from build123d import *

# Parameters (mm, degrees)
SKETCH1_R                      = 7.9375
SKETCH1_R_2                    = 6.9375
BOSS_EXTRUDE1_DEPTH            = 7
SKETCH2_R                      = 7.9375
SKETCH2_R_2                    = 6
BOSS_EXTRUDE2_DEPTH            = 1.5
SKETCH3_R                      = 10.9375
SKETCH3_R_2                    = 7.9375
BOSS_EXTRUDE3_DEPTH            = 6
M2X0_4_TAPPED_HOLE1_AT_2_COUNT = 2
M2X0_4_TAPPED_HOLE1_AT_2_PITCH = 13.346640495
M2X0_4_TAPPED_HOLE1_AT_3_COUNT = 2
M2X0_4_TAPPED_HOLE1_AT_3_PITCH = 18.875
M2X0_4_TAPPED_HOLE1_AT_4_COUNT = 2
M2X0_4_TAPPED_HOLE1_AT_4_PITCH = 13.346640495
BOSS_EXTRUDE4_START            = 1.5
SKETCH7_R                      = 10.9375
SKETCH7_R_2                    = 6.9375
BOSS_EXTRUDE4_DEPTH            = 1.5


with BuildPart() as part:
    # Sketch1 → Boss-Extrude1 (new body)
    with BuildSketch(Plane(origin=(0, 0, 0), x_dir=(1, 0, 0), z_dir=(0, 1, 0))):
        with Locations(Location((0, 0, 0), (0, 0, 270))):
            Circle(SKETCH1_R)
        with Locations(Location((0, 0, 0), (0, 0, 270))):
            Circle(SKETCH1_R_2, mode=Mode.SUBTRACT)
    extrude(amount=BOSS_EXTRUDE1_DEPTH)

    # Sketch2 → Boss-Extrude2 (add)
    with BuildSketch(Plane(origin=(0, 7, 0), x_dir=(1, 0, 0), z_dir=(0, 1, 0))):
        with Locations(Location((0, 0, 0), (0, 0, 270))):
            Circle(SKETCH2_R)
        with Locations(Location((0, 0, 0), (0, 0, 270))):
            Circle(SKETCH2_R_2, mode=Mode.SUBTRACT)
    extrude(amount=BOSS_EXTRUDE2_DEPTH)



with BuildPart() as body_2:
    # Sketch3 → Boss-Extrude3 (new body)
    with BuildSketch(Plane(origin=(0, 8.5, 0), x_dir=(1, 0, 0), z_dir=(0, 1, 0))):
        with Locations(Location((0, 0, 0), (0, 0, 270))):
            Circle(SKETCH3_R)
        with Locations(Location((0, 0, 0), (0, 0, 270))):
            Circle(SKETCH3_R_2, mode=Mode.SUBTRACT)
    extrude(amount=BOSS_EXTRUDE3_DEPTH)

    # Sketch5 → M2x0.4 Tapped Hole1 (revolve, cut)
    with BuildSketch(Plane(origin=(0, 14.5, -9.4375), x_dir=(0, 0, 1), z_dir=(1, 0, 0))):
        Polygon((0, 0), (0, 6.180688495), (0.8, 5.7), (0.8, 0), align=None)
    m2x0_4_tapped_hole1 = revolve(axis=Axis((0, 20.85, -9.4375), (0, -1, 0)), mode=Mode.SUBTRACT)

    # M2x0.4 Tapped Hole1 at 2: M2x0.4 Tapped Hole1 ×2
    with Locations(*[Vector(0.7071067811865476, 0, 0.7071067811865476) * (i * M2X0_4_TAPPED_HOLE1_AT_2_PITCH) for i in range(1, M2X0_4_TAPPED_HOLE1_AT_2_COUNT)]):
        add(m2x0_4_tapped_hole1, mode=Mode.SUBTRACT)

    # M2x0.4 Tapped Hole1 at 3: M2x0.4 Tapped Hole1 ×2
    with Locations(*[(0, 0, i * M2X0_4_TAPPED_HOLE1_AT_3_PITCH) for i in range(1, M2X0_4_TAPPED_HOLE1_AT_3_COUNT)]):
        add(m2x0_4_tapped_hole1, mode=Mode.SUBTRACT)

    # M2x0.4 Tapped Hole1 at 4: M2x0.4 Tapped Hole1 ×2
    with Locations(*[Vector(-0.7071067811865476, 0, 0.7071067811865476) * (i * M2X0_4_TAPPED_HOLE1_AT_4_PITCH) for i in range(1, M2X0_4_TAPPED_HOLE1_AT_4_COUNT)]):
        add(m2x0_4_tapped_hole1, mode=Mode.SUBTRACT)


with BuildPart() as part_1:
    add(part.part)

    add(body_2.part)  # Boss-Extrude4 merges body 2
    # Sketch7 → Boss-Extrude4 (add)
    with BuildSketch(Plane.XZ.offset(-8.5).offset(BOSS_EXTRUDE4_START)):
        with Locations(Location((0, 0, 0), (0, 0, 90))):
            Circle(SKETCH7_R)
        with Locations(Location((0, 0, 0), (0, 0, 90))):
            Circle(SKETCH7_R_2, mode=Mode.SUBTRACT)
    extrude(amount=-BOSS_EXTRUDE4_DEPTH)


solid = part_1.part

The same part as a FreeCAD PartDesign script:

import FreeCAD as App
import Part
import Sketcher
from FreeCAD import Vector
Q = App.Units.Quantity


def add_polygon(sketch, points):
    """Adds a closed chain of lines whose ends are joined by coincident constraints."""
    first, n = sketch.GeometryCount, len(points)
    for a, b in zip(points, points[1:] + points[:1]):
        sketch.addGeometry(Part.LineSegment(App.Vector(*a, 0), App.Vector(*b, 0)), False)
    for i in range(n):
        sketch.addConstraint(Sketcher.Constraint("Coincident", first + i, 2, first + (i + 1) % n, 1))

doc = App.newDocument("Part")
body = doc.addObject("PartDesign::Body", "Body")

sketch1 = doc.addObject("Sketcher::SketchObject", "Sketch")
body.addObject(sketch1)
sketch1.AttachmentSupport = (doc.XZ_Plane, [""])
sketch1.MapMode = "FlatFace"
sketch1.addGeometry([
    Part.Circle(Vector(0, 0, 0), Vector(0, 0, 1), 7.9375),
    Part.Circle(Vector(0, 0, 0), Vector(0, 0, 1), 6.9375),
], False)
sketch1.addConstraint([
    Sketcher.Constraint("Coincident", 0, 3, -1, 1),
    Sketcher.Constraint("Coincident", 1, 3, -1, 1),
    Sketcher.Constraint("Diameter", 0, Q("15.875 mm")),
    Sketcher.Constraint("Diameter", 1, Q("13.875 mm")),
])
pad1 = doc.addObject("PartDesign::Pad", "Pad")
body.addObject(pad1)
pad1.Profile = sketch1
pad1.Length = 7
pad1.Reversed = True

sketch2 = doc.addObject("Sketcher::SketchObject", "Sketch001")
body.addObject(sketch2)
sketch2.AttachmentSupport = (doc.XZ_Plane, [""])
sketch2.MapMode = "FlatFace"
sketch2.AttachmentOffset = App.Placement(Vector(0, 0, -7), App.Rotation())
sketch2.addGeometry([
    Part.Circle(Vector(0, 0, 0), Vector(0, 0, 1), 7.9375),
    Part.Circle(Vector(0, 0, 0), Vector(0, 0, 1), 6),
], False)
sketch2.addConstraint([
    Sketcher.Constraint("Coincident", 0, 3, -1, 1),
    Sketcher.Constraint("Coincident", 1, 3, -1, 1),
    Sketcher.Constraint("Diameter", 1, Q("12 mm")),
    Sketcher.Constraint("Diameter", 0, Q("15.875 mm")),
])
pad2 = doc.addObject("PartDesign::Pad", "Pad001")
body.addObject(pad2)
pad2.Profile = sketch2
pad2.Length = 1.5
pad2.Reversed = True
body2 = doc.addObject("PartDesign::Body", "Body001")

sketch3 = doc.addObject("Sketcher::SketchObject", "Sketch002")
body2.addObject(sketch3)
sketch3.AttachmentSupport = (doc.getObject("XZ_Plane001"), [""])
sketch3.MapMode = "FlatFace"
sketch3.AttachmentOffset = App.Placement(Vector(0, 0, -8.5), App.Rotation())
sketch3.addGeometry([
    Part.Circle(Vector(0, 0, 0), Vector(0, 0, 1), 10.9375),
    Part.Circle(Vector(0, 0, 0), Vector(0, 0, 1), 7.9375),
], False)
sketch3.addConstraint([
    Sketcher.Constraint("Coincident", 0, 3, -1, 1),
    Sketcher.Constraint("Coincident", 1, 3, -1, 1),
    Sketcher.Constraint("Diameter", 0, Q("21.875 mm")),
    Sketcher.Constraint("Diameter", 1, Q("15.875 mm")),
])
pad3 = doc.addObject("PartDesign::Pad", "Pad002")
body2.addObject(pad3)
pad3.Profile = sketch3
pad3.Length = 6
pad3.Reversed = True

sketch4 = doc.addObject("Sketcher::SketchObject", "Sketch003")
body2.addObject(sketch4)
sketch4.AttachmentSupport = (doc.getObject("YZ_Plane001"), [""])
sketch4.MapMode = "FlatFace"
add_polygon(sketch4, [(8.319312, -9.4375), (14.5, -9.4375), (14.5, -8.6375), (8.8, -8.6375)])
sketch4.addGeometry(Part.LineSegment(Vector(14.5, -9.4375, 0), Vector(8.319312, -9.4375, 0)), True)
sketch4.addConstraint([
    Sketcher.Constraint("Horizontal", 0),
    Sketcher.Constraint("Vertical", 1),
    Sketcher.Constraint("Horizontal", 2),
    Sketcher.Constraint("Horizontal", 4),
    Sketcher.Constraint("Coincident", 4, 1, 0, 2),
    Sketcher.Constraint("Equal", 0, 4),
    Sketcher.Constraint("Angle", 3, Q("-121 deg")),
    Sketcher.Constraint("DistanceX", 2, 2, 2, 1, Q("5.7 mm")),
    Sketcher.Constraint("DistanceY", 1, 1, 1, 2, Q("0.8 mm")),
    Sketcher.Constraint("DistanceX", -1, 1, 0, 2, Q("14.5 mm")),
    Sketcher.Constraint("DistanceY", 0, 2, -1, 1, Q("9.4375 mm")),
])
groove = doc.addObject("PartDesign::Groove", "Groove")
body2.addObject(groove)
groove.Profile = sketch4
groove.ReferenceAxis = (sketch4, ["Axis0"])
groove.Angle = 360
doc.recompute()

datumline = doc.addObject("PartDesign::Line", "DatumLine")
body2.addObject(datumline)
datumline.Placement = App.Placement(Vector(0, 0, 0), App.Rotation(Vector(0, 0, 1), Vector(0.707106781, 0, 0.707106781)))
linearpattern = doc.addObject("PartDesign::LinearPattern", "LinearPattern")
body2.addObject(linearpattern)
linearpattern.Originals = [groove]
linearpattern.Direction = (datumline, [""])
linearpattern.Mode = "offset"
linearpattern.Offset = 13.34664
linearpattern.Occurrences = 2
body2.Tip = linearpattern
doc.recompute()

linearpattern2 = doc.addObject("PartDesign::LinearPattern", "LinearPattern001")
body2.addObject(linearpattern2)
linearpattern2.Originals = [groove]
linearpattern2.Direction = (doc.getObject("Z_Axis001"), [""])
linearpattern2.Mode = "offset"
linearpattern2.Offset = 18.875
linearpattern2.Occurrences = 2
body2.Tip = linearpattern2
doc.recompute()

datumline2 = doc.addObject("PartDesign::Line", "DatumLine001")
body2.addObject(datumline2)
datumline2.Placement = App.Placement(Vector(0, 0, 0), App.Rotation(Vector(0, 0, 1), Vector(-0.707106781, 0, 0.707106781)))
linearpattern3 = doc.addObject("PartDesign::LinearPattern", "LinearPattern002")
body2.addObject(linearpattern3)
linearpattern3.Originals = [groove]
linearpattern3.Direction = (datumline2, [""])
linearpattern3.Mode = "offset"
linearpattern3.Offset = 13.34664
linearpattern3.Occurrences = 2
body2.Tip = linearpattern3
body.AllowCompound = True
doc.recompute()

boolean = doc.addObject("PartDesign::Boolean", "Boolean")
body.addObject(boolean)
boolean.Type = "Fuse"
boolean.addObjects([body2])

sketch5 = doc.addObject("Sketcher::SketchObject", "Sketch004")
body.addObject(sketch5)
sketch5.AttachmentSupport = (doc.XZ_Plane, [""])
sketch5.MapMode = "FlatFace"
sketch5.AttachmentOffset = App.Placement(Vector(0, 0, -7), App.Rotation())
sketch5.addGeometry([
    Part.Circle(Vector(0, 0, 0), Vector(0, 0, 1), 10.9375),
    Part.Circle(Vector(0, 0, 0), Vector(0, 0, 1), 6.9375),
], False)
sketch5.addConstraint([
    Sketcher.Constraint("Coincident", 0, 3, -1, 1),
    Sketcher.Constraint("Coincident", 1, 3, -1, 1),
    Sketcher.Constraint("Diameter", 0, Q("21.875 mm")),
    Sketcher.Constraint("Diameter", 1, Q("13.875 mm")),
])
pad4 = doc.addObject("PartDesign::Pad", "Pad003")
body.addObject(pad4)
pad4.Profile = sketch5
pad4.Length = 1.5
pad4.Reversed = True

doc.recompute()
